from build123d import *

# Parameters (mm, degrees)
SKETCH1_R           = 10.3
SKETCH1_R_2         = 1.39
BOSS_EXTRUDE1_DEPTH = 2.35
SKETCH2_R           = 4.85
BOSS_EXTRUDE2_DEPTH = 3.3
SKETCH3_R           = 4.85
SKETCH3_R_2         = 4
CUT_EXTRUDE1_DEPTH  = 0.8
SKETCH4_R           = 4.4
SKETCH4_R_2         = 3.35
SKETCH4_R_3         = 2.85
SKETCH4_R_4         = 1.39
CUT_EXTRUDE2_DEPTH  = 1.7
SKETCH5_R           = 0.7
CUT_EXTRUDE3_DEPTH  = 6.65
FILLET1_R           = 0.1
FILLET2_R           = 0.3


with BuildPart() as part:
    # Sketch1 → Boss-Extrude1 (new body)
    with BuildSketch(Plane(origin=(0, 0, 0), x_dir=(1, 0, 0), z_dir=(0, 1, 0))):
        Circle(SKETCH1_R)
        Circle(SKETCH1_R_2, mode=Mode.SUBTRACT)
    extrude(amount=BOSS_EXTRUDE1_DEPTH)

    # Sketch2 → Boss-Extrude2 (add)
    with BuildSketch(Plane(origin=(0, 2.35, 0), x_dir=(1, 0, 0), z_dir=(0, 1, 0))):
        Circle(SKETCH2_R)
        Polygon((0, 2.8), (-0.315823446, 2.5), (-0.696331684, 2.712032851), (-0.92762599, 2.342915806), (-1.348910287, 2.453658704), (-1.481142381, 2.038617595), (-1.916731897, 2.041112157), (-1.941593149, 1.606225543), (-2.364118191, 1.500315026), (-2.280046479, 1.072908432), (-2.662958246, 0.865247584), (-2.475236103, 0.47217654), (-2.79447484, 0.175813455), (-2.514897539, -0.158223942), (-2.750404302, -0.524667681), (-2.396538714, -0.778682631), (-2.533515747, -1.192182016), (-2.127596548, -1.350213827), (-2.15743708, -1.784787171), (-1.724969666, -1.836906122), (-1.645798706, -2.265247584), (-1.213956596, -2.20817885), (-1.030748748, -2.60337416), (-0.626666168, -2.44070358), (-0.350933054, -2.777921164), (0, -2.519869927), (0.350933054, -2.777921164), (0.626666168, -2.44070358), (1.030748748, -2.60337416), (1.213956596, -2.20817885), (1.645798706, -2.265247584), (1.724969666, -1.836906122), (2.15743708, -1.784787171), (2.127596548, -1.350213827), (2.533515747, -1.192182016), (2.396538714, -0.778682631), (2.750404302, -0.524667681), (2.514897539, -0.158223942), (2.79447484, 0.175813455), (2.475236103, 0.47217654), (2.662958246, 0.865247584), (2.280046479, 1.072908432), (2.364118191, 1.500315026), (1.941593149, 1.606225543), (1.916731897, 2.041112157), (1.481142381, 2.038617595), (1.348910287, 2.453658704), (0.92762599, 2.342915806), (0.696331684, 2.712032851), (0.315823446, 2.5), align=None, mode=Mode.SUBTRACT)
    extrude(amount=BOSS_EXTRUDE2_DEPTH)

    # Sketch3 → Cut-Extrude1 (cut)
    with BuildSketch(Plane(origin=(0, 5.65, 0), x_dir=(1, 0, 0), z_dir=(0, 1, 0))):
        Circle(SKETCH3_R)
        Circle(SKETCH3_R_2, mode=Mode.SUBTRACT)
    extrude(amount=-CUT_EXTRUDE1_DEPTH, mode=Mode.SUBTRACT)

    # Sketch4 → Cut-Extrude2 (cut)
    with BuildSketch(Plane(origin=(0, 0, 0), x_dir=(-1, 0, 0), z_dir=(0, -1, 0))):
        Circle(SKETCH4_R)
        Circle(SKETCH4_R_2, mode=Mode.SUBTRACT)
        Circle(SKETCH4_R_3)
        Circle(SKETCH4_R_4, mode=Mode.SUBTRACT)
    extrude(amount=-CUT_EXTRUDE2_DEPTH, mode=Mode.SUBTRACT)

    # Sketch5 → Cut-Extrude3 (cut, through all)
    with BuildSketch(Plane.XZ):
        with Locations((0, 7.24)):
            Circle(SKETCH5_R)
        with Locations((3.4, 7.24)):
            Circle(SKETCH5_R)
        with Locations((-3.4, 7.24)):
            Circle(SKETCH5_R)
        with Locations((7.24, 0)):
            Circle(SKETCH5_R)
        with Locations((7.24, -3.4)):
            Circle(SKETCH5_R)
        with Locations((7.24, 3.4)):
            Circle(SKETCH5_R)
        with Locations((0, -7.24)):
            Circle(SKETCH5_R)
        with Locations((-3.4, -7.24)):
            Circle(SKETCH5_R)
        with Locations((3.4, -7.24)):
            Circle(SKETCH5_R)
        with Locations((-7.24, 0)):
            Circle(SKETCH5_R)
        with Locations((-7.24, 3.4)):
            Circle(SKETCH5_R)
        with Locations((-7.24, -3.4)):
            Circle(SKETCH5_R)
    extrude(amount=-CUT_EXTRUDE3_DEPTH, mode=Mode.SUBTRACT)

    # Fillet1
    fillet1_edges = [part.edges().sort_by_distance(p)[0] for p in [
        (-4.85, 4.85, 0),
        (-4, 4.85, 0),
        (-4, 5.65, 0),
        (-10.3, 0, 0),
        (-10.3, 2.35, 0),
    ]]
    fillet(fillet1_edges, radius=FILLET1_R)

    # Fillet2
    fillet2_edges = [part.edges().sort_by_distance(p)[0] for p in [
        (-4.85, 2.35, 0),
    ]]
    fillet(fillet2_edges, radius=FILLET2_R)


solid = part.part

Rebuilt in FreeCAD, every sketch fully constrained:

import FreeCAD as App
import Part
import Sketcher


def edges_at(feature, points):
    """Names of the edges that pass closest to the given points."""
    edges = feature.Shape.Edges
    near = lambda p: min(range(len(edges)), key=lambda i: edges[i].distToShape(Part.Vertex(*p))[0])
    return sorted({f"Edge{near(p) + 1}" for p in points})

doc = App.newDocument("Part")
body = doc.addObject("PartDesign::Body", "Body")

sketch1 = body.newObject("Sketcher::SketchObject", "Sketch")
sketch1.AttachmentSupport = (doc.getObject("XZ_Plane"), [""])
sketch1.MapMode = "FlatFace"
sketch1.addGeometry([
    Part.Circle(App.Vector(0, 0, 0), App.Vector(0, 0, 1), 10.3),
    Part.Circle(App.Vector(0, 0, 0), App.Vector(0, 0, 1), 1.4),
], False)
sketch1.addConstraint([
    Sketcher.Constraint("Coincident", 0, 3, -1, 1),
    Sketcher.Constraint("Coincident", 1, 3, -1, 1),
    Sketcher.Constraint("Diameter", 0, 20.6),
    Sketcher.Constraint("Diameter", 1, 2.78),
])
pad1 = body.newObject("PartDesign::Pad", "Pad")
pad1.Profile = sketch1
pad1.Length = 2.35
pad1.Reversed = True

sketch2 = body.newObject("Sketcher::SketchObject", "Sketch001")
sketch2.AttachmentSupport = (doc.getObject("XZ_Plane"), [""])
sketch2.MapMode = "FlatFace"
sketch2.AttachmentOffset = App.Placement(App.Vector(0, 0, -2.35), App.Rotation())
sketch2.addGeometry([
    Part.Circle(App.Vector(0, 0, 0), App.Vector(0, 0, 1), 4.85),
    Part.LineSegment(App.Vector(-0.315823, -2.5, 0), App.Vector(0, -2.8, 0)),
    Part.LineSegment(App.Vector(0, -2.8, 0), App.Vector(0.315823, -2.5, 0)),
    Part.LineSegment(App.Vector(0.315823, -2.5, 0), App.Vector(0.696332, -2.712033, 0)),
    Part.LineSegment(App.Vector(0.696332, -2.712033, 0), App.Vector(0.927626, -2.342916, 0)),
    Part.LineSegment(App.Vector(0.927626, -2.342916, 0), App.Vector(1.34891, -2.453659, 0)),
    Part.LineSegment(App.Vector(1.34891, -2.453659, 0), App.Vector(1.481142, -2.038618, 0)),
    Part.LineSegment(App.Vector(1.481142, -2.038618, 0), App.Vector(1.916732, -2.041112, 0)),
    Part.LineSegment(App.Vector(1.916732, -2.041112, 0), App.Vector(1.941593, -1.606226, 0)),
    Part.LineSegment(App.Vector(1.941593, -1.606226, 0), App.Vector(2.364118, -1.500315, 0)),
    Part.LineSegment(App.Vector(2.364118, -1.500315, 0), App.Vector(2.280046, -1.072908, 0)),
    Part.LineSegment(App.Vector(2.280046, -1.072908, 0), App.Vector(2.662958, -0.865248, 0)),
    Part.LineSegment(App.Vector(2.662958, -0.865248, 0), App.Vector(2.475236, -0.472177, 0)),
    Part.LineSegment(App.Vector(2.475236, -0.472177, 0), App.Vector(2.794475, -0.175813, 0)),
    Part.LineSegment(App.Vector(2.794475, -0.175813, 0), App.Vector(2.514898, 0.158224, 0)),
    Part.LineSegment(App.Vector(2.514898, 0.158224, 0), App.Vector(2.750404, 0.524668, 0)),
    Part.LineSegment(App.Vector(2.750404, 0.524668, 0), App.Vector(2.396539, 0.778683, 0)),
    Part.LineSegment(App.Vector(2.396539, 0.778683, 0), App.Vector(2.533516, 1.192182, 0)),
    Part.LineSegment(App.Vector(2.533516, 1.192182, 0), App.Vector(2.127597, 1.350214, 0)),
    Part.LineSegment(App.Vector(2.127597, 1.350214, 0), App.Vector(2.157437, 1.784787, 0)),
    Part.LineSegment(App.Vector(2.157437, 1.784787, 0), App.Vector(1.72497, 1.836906, 0)),
    Part.LineSegment(App.Vector(1.72497, 1.836906, 0), App.Vector(1.645799, 2.265248, 0)),
    Part.LineSegment(App.Vector(1.645799, 2.265248, 0), App.Vector(1.213957, 2.208179, 0)),
    Part.LineSegment(App.Vector(1.213957, 2.208179, 0), App.Vector(1.030749, 2.603374, 0)),
    Part.LineSegment(App.Vector(1.030749, 2.603374, 0), App.Vector(0.626666, 2.440704, 0)),
    Part.LineSegment(App.Vector(0.626666, 2.440704, 0), App.Vector(0.350933, 2.777921, 0)),
    Part.LineSegment(App.Vector(0.350933, 2.777921, 0), App.Vector(0, 2.51987, 0)),
    Part.LineSegment(App.Vector(0, 2.51987, 0), App.Vector(-0.350933, 2.777921, 0)),
    Part.LineSegment(App.Vector(-0.350933, 2.777921, 0), App.Vector(-0.626666, 2.440704, 0)),
    Part.LineSegment(App.Vector(-0.626666, 2.440704, 0), App.Vector(-1.030749, 2.603374, 0)),
    Part.LineSegment(App.Vector(-1.030749, 2.603374, 0), App.Vector(-1.213957, 2.208179, 0)),
    Part.LineSegment(App.Vector(-1.213957, 2.208179, 0), App.Vector(-1.645799, 2.265248, 0)),
    Part.LineSegment(App.Vector(-1.645799, 2.265248, 0), App.Vector(-1.72497, 1.836906, 0)),
    Part.LineSegment(App.Vector(-1.72497, 1.836906, 0), App.Vector(-2.157437, 1.784787, 0)),
    Part.LineSegment(App.Vector(-2.157437, 1.784787, 0), App.Vector(-2.127597, 1.350214, 0)),
    Part.LineSegment(App.Vector(-2.127597, 1.350214, 0), App.Vector(-2.533516, 1.192182, 0)),
    Part.LineSegment(App.Vector(-2.533516, 1.192182, 0), App.Vector(-2.396539, 0.778683, 0)),
    Part.LineSegment(App.Vector(-2.396539, 0.778683, 0), App.Vector(-2.750404, 0.524668, 0)),
    Part.LineSegment(App.Vector(-2.750404, 0.524668, 0), App.Vector(-2.514898, 0.158224, 0)),
    Part.LineSegment(App.Vector(-2.514898, 0.158224, 0), App.Vector(-2.794475, -0.175813, 0)),
    Part.LineSegment(App.Vector(-2.794475, -0.175813, 0), App.Vector(-2.475236, -0.472177, 0)),
    Part.LineSegment(App.Vector(-2.475236, -0.472177, 0), App.Vector(-2.662958, -0.865248, 0)),
    Part.LineSegment(App.Vector(-2.662958, -0.865248, 0), App.Vector(-2.280046, -1.072908, 0)),
    Part.LineSegment(App.Vector(-2.280046, -1.072908, 0), App.Vector(-2.364118, -1.500315, 0)),
    Part.LineSegment(App.Vector(-2.364118, -1.500315, 0), App.Vector(-1.941593, -1.606226, 0)),
    Part.LineSegment(App.Vector(-1.941593, -1.606226, 0), App.Vector(-1.916732, -2.041112, 0)),
    Part.LineSegment(App.Vector(-1.916732, -2.041112, 0), App.Vector(-1.481142, -2.038618, 0)),
    Part.LineSegment(App.Vector(-1.481142, -2.038618, 0), App.Vector(-1.34891, -2.453659, 0)),
    Part.LineSegment(App.Vector(-1.34891, -2.453659, 0), App.Vector(-0.927626, -2.342916, 0)),
    Part.LineSegment(App.Vector(-0.927626, -2.342916, 0), App.Vector(-0.696332, -2.712033, 0)),
    Part.LineSegment(App.Vector(-0.696332, -2.712033, 0), App.Vector(-0.315823, -2.5, 0)),
], False)
sketch2.addConstraint([
    Sketcher.Constraint("Coincident", 1, 2, 2, 1),
    Sketcher.Constraint("Coincident", 2, 2, 3, 1),
    Sketcher.Constraint("Coincident", 3, 2, 4, 1),
    Sketcher.Constraint("Coincident", 4, 2, 5, 1),
    Sketcher.Constraint("Coincident", 5, 2, 6, 1),
    Sketcher.Constraint("Coincident", 6, 2, 7, 1),
    Sketcher.Constraint("Coincident", 7, 2, 8, 1),
    Sketcher.Constraint("Coincident", 8, 2, 9, 1),
    Sketcher.Constraint("Coincident", 9, 2, 10, 1),
    Sketcher.Constraint("Coincident", 10, 2, 11, 1),
    Sketcher.Constraint("Coincident", 11, 2, 12, 1),
    Sketcher.Constraint("Coincident", 12, 2, 13, 1),
    Sketcher.Constraint("Coincident", 13, 2, 14, 1),
    Sketcher.Constraint("Coincident", 14, 2, 15, 1),
    Sketcher.Constraint("Coincident", 15, 2, 16, 1),
    Sketcher.Constraint("Coincident", 16, 2, 17, 1),
    Sketcher.Constraint("Coincident", 17, 2, 18, 1),
    Sketcher.Constraint("Coincident", 18, 2, 19, 1),
    Sketcher.Constraint("Coincident", 19, 2, 20, 1),
    Sketcher.Constraint("Coincident", 20, 2, 21, 1),
    Sketcher.Constraint("Coincident", 21, 2, 22, 1),
    Sketcher.Constraint("Coincident", 22, 2, 23, 1),
    Sketcher.Constraint("Coincident", 23, 2, 24, 1),
    Sketcher.Constraint("Coincident", 24, 2, 25, 1),
    Sketcher.Constraint("Coincident", 25, 2, 26, 1),
    Sketcher.Constraint("Coincident", 26, 2, 27, 1),
    Sketcher.Constraint("Coincident", 27, 2, 28, 1),
    Sketcher.Constraint("Coincident", 28, 2, 29, 1),
    Sketcher.Constraint("Coincident", 29, 2, 30, 1),
    Sketcher.Constraint("Coincident", 30, 2, 31, 1),
    Sketcher.Constraint("Coincident", 31, 2, 32, 1),
    Sketcher.Constraint("Coincident", 32, 2, 33, 1),
    Sketcher.Constraint("Coincident", 33, 2, 34, 1),
    Sketcher.Constraint("Coincident", 34, 2, 35, 1),
    Sketcher.Constraint("Coincident", 35, 2, 36, 1),
    Sketcher.Constraint("Coincident", 36, 2, 37, 1),
    Sketcher.Constraint("Coincident", 37, 2, 38, 1),
    Sketcher.Constraint("Coincident", 38, 2, 39, 1),
    Sketcher.Constraint("Coincident", 39, 2, 40, 1),
    Sketcher.Constraint("Coincident", 40, 2, 41, 1),
    Sketcher.Constraint("Coincident", 41, 2, 42, 1),
    Sketcher.Constraint("Coincident", 42, 2, 43, 1),
    Sketcher.Constraint("Coincident", 43, 2, 44, 1),
    Sketcher.Constraint("Coincident", 44, 2, 45, 1),
    Sketcher.Constraint("Coincident", 45, 2, 46, 1),
    Sketcher.Constraint("Coincident", 46, 2, 47, 1),
    Sketcher.Constraint("Coincident", 47, 2, 48, 1),
    Sketcher.Constraint("Coincident", 48, 2, 49, 1),
    Sketcher.Constraint("Coincident", 49, 2, 50, 1),
    Sketcher.Constraint("Coincident", 50, 2, 1, 1),
    Sketcher.Constraint("Coincident", 0, 3, -1, 1),
    Sketcher.Constraint("PointOnObject", 1, 2, -2),
    Sketcher.Constraint("PointOnObject", 26, 2, -2),
    Sketcher.Constraint("Diameter", 0, 9.7),
    Sketcher.Constraint("DistanceY", 1, 2, -1, 1, 2.8),
    Sketcher.Constraint("DistanceY", 2, 2, -1, 1, 2.5),
    Sketcher.Constraint("DistanceY", 50, 2, -1, 1, 2.5),
    Sketcher.Constraint("DistanceX", -1, 1, 21, 2, 1.645799),
    Sketcher.Constraint("DistanceX", 31, 2, -1, 1, 1.645799),
    Sketcher.Constraint("DistanceY", 4, 2, 6, 2, 0.304298),
    Sketcher.Constraint("DistanceX", 3, 2, 7, 2, 1.2204),
    Sketcher.Constraint("DistanceY", 4, 2, 9, 2, 0.842601),
    Sketcher.Constraint("DistanceY", 9, 2, 13, 2, 1.324502),
    Sketcher.Constraint("DistanceY", 12, 2, 14, 2, 0.6304),
    Sketcher.Constraint("DistanceY", 16, 2, 17, 2, 0.413499),
    Sketcher.Constraint("DistanceX", 18, 2, 14, 2, 0.387301),
    Sketcher.Constraint("DistanceX", 19, 2, 16, 2, 0.239102),
    Sketcher.Constraint("DistanceX", 27, 2, 24, 2, 0.977599),
    Sketcher.Constraint("DistanceX", 28, 2, 25, 2, 0.977599),
    Sketcher.Constraint("DistanceY", 36, 2, 35, 2, 0.413499),
    Sketcher.Constraint("DistanceX", 36, 2, 33, 2, 0.239102),
    Sketcher.Constraint("DistanceX", 38, 2, 34, 2, 0.387301),
    Sketcher.Constraint("DistanceY", 40, 2, 38, 2, 0.6304),
    Sketcher.Constraint("DistanceY", 43, 2, 39, 2, 1.324502),
    Sketcher.Constraint("DistanceY", 48, 2, 46, 2, 0.304298),
    Sketcher.Constraint("DistanceX", -1, 1, 3, 2, 0.696332),
    Sketcher.Constraint("DistanceX", -1, 1, 5, 2, 1.34891),
    Sketcher.Constraint("DistanceY", 5, 2, -1, 1, 2.453659),
    Sketcher.Constraint("DistanceX", -1, 1, 9, 2, 2.364118),
    Sketcher.Constraint("DistanceY", 10, 2, -1, 1, 1.072908),
    Sketcher.Constraint("DistanceX", -1, 1, 11, 2, 2.662958),
    Sketcher.Constraint("DistanceX", -1, 1, 16, 2, 2.396539),
    Sketcher.Constraint("DistanceX", -1, 1, 20, 2, 1.72497),
    Sketcher.Constraint("DistanceY", -1, 1, 22, 2, 2.208179),
    Sketcher.Constraint("DistanceX", -1, 1, 23, 2, 1.030749),
    Sketcher.Constraint("DistanceY", -1, 1, 25, 2, 2.777921),
    Sketcher.Constraint("DistanceY", -1, 1, 26, 2, 2.51987),
    Sketcher.Constraint("DistanceY", -1, 1, 27, 2, 2.777921),
    Sketcher.Constraint("DistanceX", 29, 2, -1, 1, 1.030749),
    Sketcher.Constraint("DistanceY", -1, 1, 30, 2, 2.208179),
    Sketcher.Constraint("DistanceX", 32, 2, -1, 1, 1.72497),
    Sketcher.Constraint("DistanceX", 36, 2, -1, 1, 2.396539),
    Sketcher.Constraint("DistanceX", 41, 2, -1, 1, 2.662958),
    Sketcher.Constraint("DistanceY", 42, 2, -1, 1, 1.072908),
    Sketcher.Constraint("DistanceX", 43, 2, -1, 1, 2.364118),
    Sketcher.Constraint("DistanceX", 45, 2, -1, 1, 1.916732),
    Sketcher.Constraint("DistanceX", 47, 2, -1, 1, 1.34891),
    Sketcher.Constraint("DistanceY", 47, 2, -1, 1, 2.453659),
    Sketcher.Constraint("DistanceX", 49, 2, -1, 1, 0.696332),
    Sketcher.Constraint("DistanceX", 2, 2, 3, 2, 0.380508),
    Sketcher.Constraint("DistanceY", 5, 2, 6, 2, 0.415041),
    Sketcher.Constraint("DistanceX", 3, 2, 6, 2, 0.784811),
    Sketcher.Constraint("DistanceY", 3, 2, 7, 2, 0.670921),
    Sketcher.Constraint("DistanceX", 7, 2, 8, 2, 0.024861),
    Sketcher.Constraint("DistanceY", 4, 2, 8, 2, 0.73669),
    Sketcher.Constraint("DistanceX", 10, 2, 9, 2, 0.084072),
    Sketcher.Constraint("DistanceY", 10, 2, 11, 2, 0.207661),
    Sketcher.Constraint("DistanceY", 11, 2, 12, 2, 0.393071),
    Sketcher.Constraint("DistanceX", 10, 2, 12, 2, 0.19519),
    Sketcher.Constraint("DistanceX", 12, 2, 13, 2, 0.319239),
    Sketcher.Constraint("DistanceX", 12, 2, 14, 2, 0.039661),
    Sketcher.Constraint("DistanceX", 15, 2, 13, 2, 0.044071),
    Sketcher.Constraint("DistanceY", 13, 2, 15, 2, 0.700481),
    Sketcher.Constraint("DistanceY", 14, 2, 16, 2, 0.620459),
    Sketcher.Constraint("DistanceX", 17, 2, 15, 2, 0.216889),
    Sketcher.Constraint("DistanceY", 17, 2, 18, 2, 0.158032),
    Sketcher.Constraint("DistanceY", 15, 2, 19, 2, 1.260119),
    Sketcher.Constraint("DistanceY", 19, 2, 20, 2, 0.052119),
    Sketcher.Constraint("DistanceY", 20, 2, 21, 2, 0.428341),
    Sketcher.Constraint("DistanceX", 22, 2, 19, 2, 0.94348),
    Sketcher.Constraint("DistanceY", 20, 2, 23, 2, 0.766468),
    Sketcher.Constraint("DistanceY", 24, 2, 23, 2, 0.162671),
    Sketcher.Constraint("DistanceX", 24, 2, 22, 2, 0.58729),
    Sketcher.Constraint("DistanceY", 28, 2, 23, 2, 0.162671),
    Sketcher.Constraint("DistanceY", 28, 2, 29, 2, 0.162671),
    Sketcher.Constraint("DistanceX", 29, 2, 25, 2, 1.381682),
    Sketcher.Constraint("DistanceX", 30, 2, 28, 2, 0.58729),
    Sketcher.Constraint("DistanceY", 30, 2, 31, 2, 0.057069),
    Sketcher.Constraint("DistanceY", 32, 2, 31, 2, 0.428341),
    Sketcher.Constraint("DistanceY", 33, 2, 32, 2, 0.052119),
    Sketcher.Constraint("DistanceX", 33, 2, 34, 2, 0.029841),
    Sketcher.Constraint("DistanceY", 34, 2, 29, 2, 1.25316),
    Sketcher.Constraint("DistanceX", 35, 2, 34, 2, 0.405919),
    Sketcher.Constraint("DistanceY", 35, 2, 34, 2, 0.158032),
    Sketcher.Constraint("DistanceX", 37, 2, 35, 2, 0.216889),
    Sketcher.Constraint("DistanceY", 37, 2, 33, 2, 1.260119),
    Sketcher.Constraint("DistanceY", 38, 2, 36, 2, 0.620459),
    Sketcher.Constraint("DistanceX", 39, 2, 37, 2, 0.044071),
    Sketcher.Constraint("DistanceY", 39, 2, 37, 2, 0.700481),
    Sketcher.Constraint("DistanceX", 39, 2, 40, 2, 0.319239),
    Sketcher.Constraint("DistanceY", 41, 2, 40, 2, 0.393071),
    Sketcher.Constraint("DistanceX", 41, 2, 42, 2, 0.382912),
    Sketcher.Constraint("DistanceY", 44, 2, 43, 2, 0.105911),
    Sketcher.Constraint("DistanceX", 39, 2, 44, 2, 0.852882),
    Sketcher.Constraint("DistanceX", 45, 2, 46, 2, 0.43559),
    Sketcher.Constraint("DistanceY", 46, 2, 42, 2, 0.965709),
    Sketcher.Constraint("DistanceX", 49, 2, 50, 2, 0.380508),
    Sketcher.Constraint("Distance", 3, 0.435597),
    Sketcher.Constraint("Distance", 4, 0.435597),
    Sketcher.Constraint("Distance", 45, 0.435597),
    Sketcher.Constraint("Distance", 48, 0.435597),
    Sketcher.Constraint("Distance", 49, 0.435597),
])
pad2 = body.newObject("PartDesign::Pad", "Pad001")
pad2.Profile = sketch2
pad2.Length = 3.3
pad2.Reversed = True

sketch3 = body.newObject("Sketcher::SketchObject", "Sketch002")
sketch3.AttachmentSupport = (doc.getObject("XZ_Plane"), [""])
sketch3.MapMode = "FlatFace"
sketch3.AttachmentOffset = App.Placement(App.Vector(0, 0, -5.65), App.Rotation())
sketch3.addGeometry([
    Part.Circle(App.Vector(0, 0, 0), App.Vector(0, 0, 1), 4.8),
    Part.Circle(App.Vector(0, 0, 0), App.Vector(0, 0, 1), 4),
], False)
sketch3.addConstraint([
    Sketcher.Constraint("Coincident", 0, 3, -1, 1),
    Sketcher.Constraint("Coincident", 1, 3, -1, 1),
    Sketcher.Constraint("Diameter", 1, 8.0),
    Sketcher.Constraint("Diameter", 0, 9.7),
])
pocket1 = body.newObject("PartDesign::Pocket", "Pocket")
pocket1.Profile = sketch3
pocket1.Length = 0.8
pocket1.Reversed = True

sketch4 = body.newObject("Sketcher::SketchObject", "Sketch003")
sketch4.AttachmentSupport = (doc.getObject("XZ_Plane"), [""])
sketch4.MapMode = "FlatFace"
sketch4.addGeometry([
    Part.Circle(App.Vector(0, 0, 0), App.Vector(0, 0, 1), 4.4),
    Part.Circle(App.Vector(0, 0, 0), App.Vector(0, 0, 1), 3.4),
    Part.Circle(App.Vector(0, 0, 0), App.Vector(0, 0, 1), 2.9),
    Part.Circle(App.Vector(0, 0, 0), App.Vector(0, 0, 1), 1.4),
], False)
sketch4.addConstraint([
    Sketcher.Constraint("Coincident", 0, 3, -1, 1),
    Sketcher.Constraint("Coincident", 1, 3, -1, 1),
    Sketcher.Constraint("Coincident", 2, 3, -1, 1),
    Sketcher.Constraint("Coincident", 3, 3, -1, 1),
    Sketcher.Constraint("Diameter", 0, 8.8),
    Sketcher.Constraint("Diameter", 1, 6.7),
    Sketcher.Constraint("Diameter", 2, 5.7),
    Sketcher.Constraint("Diameter", 3, 2.78),
])
pocket2 = body.newObject("PartDesign::Pocket", "Pocket001")
pocket2.Profile = sketch4
pocket2.Length = 1.7

sketch5 = body.newObject("Sketcher::SketchObject", "Sketch004")
sketch5.AttachmentSupport = (doc.getObject("XZ_Plane"), [""])
sketch5.MapMode = "FlatFace"
sketch5.addGeometry([
    Part.Circle(App.Vector(0, 7.2, 0), App.Vector(0, 0, 1), 0.7),
    Part.Circle(App.Vector(3.4, 7.2, 0), App.Vector(0, 0, 1), 0.7),
    Part.Circle(App.Vector(-3.4, 7.2, 0), App.Vector(0, 0, 1), 0.7),
    Part.Circle(App.Vector(7.2, 0, 0), App.Vector(0, 0, 1), 0.7),
    Part.Circle(App.Vector(7.2, -3.4, 0), App.Vector(0, 0, 1), 0.7),
    Part.Circle(App.Vector(7.2, 3.4, 0), App.Vector(0, 0, 1), 0.7),
    Part.Circle(App.Vector(0, -7.2, 0), App.Vector(0, 0, 1), 0.7),
    Part.Circle(App.Vector(-3.4, -7.2, 0), App.Vector(0, 0, 1), 0.7),
    Part.Circle(App.Vector(3.4, -7.2, 0), App.Vector(0, 0, 1), 0.7),
    Part.Circle(App.Vector(-7.2, 0, 0), App.Vector(0, 0, 1), 0.7),
    Part.Circle(App.Vector(-7.2, 3.4, 0), App.Vector(0, 0, 1), 0.7),
    Part.Circle(App.Vector(-7.2, -3.4, 0), App.Vector(0, 0, 1), 0.7),
], False)
sketch5.addConstraint([
    Sketcher.Constraint("Equal", 0, 1),
    Sketcher.Constraint("Equal", 1, 2),
    Sketcher.Constraint("Equal", 2, 3),
    Sketcher.Constraint("Equal", 3, 4),
    Sketcher.Constraint("Equal", 4, 5),
    Sketcher.Constraint("Equal", 5, 6),
    Sketcher.Constraint("Equal", 6, 7),
    Sketcher.Constraint("Equal", 7, 8),
    Sketcher.Constraint("Equal", 8, 9),
    Sketcher.Constraint("Equal", 9, 10),
    Sketcher.Constraint("Equal", 10, 11),
    Sketcher.Constraint("Symmetric", 0, 3, 6, 3, -1, 1),
    Sketcher.Constraint("Symmetric", 1, 3, 7, 3, -1, 1),
    Sketcher.Constraint("Symmetric", 2, 3, 8, 3, -1, 1),
    Sketcher.Constraint("Symmetric", 3, 3, 9, 3, -1, 1),
    Sketcher.Constraint("Symmetric", 4, 3, 10, 3, -1, 1),
    Sketcher.Constraint("Symmetric", 5, 3, 11, 3, -1, 1),
    Sketcher.Constraint("Symmetric", 1, 3, 2, 3, -2),
    Sketcher.Constraint("Symmetric", 5, 3, 10, 3, -2),
    Sketcher.Constraint("PointOnObject", 0, 3, -2),
    Sketcher.Constraint("PointOnObject", 3, 3, -1),
    Sketcher.Constraint("Horizontal", 0, 3, 1, 3),
    Sketcher.Constraint("Vertical", 3, 3, 4, 3),
    Sketcher.Constraint("Diameter", 0, 1.4),
    Sketcher.Constraint("DistanceX", -1, 1, 1, 3, 3.4),
    Sketcher.Constraint("DistanceY", 4, 3, -1, 1, 3.4),
    Sketcher.Constraint("DistanceY", -1, 1, 0, 3, 7.24),
    Sketcher.Constraint("DistanceX", -1, 1, 3, 3, 7.24),
])
pocket3 = body.newObject("PartDesign::Pocket", "Pocket002")
pocket3.Profile = sketch5
pocket3.Type = "ThroughAll"
doc.recompute()

fillet = body.newObject("PartDesign::Fillet", "Fillet")
fillet.Base = (pocket3, edges_at(pocket3, [
    (-4.85, 4.85, 0),
    (-4, 4.85, 0),
    (-4, 5.65, 0),
    (-10.3, 0, 0),
    (-10.3, 2.35, 0),
]))
fillet.Radius = 0.1
doc.recompute()

fillet2 = body.newObject("PartDesign::Fillet", "Fillet001")
fillet2.Base = (fillet, edges_at(fillet, [(-4.85, 2.35, 0)]))
fillet2.Radius = 0.3

doc.recompute()
